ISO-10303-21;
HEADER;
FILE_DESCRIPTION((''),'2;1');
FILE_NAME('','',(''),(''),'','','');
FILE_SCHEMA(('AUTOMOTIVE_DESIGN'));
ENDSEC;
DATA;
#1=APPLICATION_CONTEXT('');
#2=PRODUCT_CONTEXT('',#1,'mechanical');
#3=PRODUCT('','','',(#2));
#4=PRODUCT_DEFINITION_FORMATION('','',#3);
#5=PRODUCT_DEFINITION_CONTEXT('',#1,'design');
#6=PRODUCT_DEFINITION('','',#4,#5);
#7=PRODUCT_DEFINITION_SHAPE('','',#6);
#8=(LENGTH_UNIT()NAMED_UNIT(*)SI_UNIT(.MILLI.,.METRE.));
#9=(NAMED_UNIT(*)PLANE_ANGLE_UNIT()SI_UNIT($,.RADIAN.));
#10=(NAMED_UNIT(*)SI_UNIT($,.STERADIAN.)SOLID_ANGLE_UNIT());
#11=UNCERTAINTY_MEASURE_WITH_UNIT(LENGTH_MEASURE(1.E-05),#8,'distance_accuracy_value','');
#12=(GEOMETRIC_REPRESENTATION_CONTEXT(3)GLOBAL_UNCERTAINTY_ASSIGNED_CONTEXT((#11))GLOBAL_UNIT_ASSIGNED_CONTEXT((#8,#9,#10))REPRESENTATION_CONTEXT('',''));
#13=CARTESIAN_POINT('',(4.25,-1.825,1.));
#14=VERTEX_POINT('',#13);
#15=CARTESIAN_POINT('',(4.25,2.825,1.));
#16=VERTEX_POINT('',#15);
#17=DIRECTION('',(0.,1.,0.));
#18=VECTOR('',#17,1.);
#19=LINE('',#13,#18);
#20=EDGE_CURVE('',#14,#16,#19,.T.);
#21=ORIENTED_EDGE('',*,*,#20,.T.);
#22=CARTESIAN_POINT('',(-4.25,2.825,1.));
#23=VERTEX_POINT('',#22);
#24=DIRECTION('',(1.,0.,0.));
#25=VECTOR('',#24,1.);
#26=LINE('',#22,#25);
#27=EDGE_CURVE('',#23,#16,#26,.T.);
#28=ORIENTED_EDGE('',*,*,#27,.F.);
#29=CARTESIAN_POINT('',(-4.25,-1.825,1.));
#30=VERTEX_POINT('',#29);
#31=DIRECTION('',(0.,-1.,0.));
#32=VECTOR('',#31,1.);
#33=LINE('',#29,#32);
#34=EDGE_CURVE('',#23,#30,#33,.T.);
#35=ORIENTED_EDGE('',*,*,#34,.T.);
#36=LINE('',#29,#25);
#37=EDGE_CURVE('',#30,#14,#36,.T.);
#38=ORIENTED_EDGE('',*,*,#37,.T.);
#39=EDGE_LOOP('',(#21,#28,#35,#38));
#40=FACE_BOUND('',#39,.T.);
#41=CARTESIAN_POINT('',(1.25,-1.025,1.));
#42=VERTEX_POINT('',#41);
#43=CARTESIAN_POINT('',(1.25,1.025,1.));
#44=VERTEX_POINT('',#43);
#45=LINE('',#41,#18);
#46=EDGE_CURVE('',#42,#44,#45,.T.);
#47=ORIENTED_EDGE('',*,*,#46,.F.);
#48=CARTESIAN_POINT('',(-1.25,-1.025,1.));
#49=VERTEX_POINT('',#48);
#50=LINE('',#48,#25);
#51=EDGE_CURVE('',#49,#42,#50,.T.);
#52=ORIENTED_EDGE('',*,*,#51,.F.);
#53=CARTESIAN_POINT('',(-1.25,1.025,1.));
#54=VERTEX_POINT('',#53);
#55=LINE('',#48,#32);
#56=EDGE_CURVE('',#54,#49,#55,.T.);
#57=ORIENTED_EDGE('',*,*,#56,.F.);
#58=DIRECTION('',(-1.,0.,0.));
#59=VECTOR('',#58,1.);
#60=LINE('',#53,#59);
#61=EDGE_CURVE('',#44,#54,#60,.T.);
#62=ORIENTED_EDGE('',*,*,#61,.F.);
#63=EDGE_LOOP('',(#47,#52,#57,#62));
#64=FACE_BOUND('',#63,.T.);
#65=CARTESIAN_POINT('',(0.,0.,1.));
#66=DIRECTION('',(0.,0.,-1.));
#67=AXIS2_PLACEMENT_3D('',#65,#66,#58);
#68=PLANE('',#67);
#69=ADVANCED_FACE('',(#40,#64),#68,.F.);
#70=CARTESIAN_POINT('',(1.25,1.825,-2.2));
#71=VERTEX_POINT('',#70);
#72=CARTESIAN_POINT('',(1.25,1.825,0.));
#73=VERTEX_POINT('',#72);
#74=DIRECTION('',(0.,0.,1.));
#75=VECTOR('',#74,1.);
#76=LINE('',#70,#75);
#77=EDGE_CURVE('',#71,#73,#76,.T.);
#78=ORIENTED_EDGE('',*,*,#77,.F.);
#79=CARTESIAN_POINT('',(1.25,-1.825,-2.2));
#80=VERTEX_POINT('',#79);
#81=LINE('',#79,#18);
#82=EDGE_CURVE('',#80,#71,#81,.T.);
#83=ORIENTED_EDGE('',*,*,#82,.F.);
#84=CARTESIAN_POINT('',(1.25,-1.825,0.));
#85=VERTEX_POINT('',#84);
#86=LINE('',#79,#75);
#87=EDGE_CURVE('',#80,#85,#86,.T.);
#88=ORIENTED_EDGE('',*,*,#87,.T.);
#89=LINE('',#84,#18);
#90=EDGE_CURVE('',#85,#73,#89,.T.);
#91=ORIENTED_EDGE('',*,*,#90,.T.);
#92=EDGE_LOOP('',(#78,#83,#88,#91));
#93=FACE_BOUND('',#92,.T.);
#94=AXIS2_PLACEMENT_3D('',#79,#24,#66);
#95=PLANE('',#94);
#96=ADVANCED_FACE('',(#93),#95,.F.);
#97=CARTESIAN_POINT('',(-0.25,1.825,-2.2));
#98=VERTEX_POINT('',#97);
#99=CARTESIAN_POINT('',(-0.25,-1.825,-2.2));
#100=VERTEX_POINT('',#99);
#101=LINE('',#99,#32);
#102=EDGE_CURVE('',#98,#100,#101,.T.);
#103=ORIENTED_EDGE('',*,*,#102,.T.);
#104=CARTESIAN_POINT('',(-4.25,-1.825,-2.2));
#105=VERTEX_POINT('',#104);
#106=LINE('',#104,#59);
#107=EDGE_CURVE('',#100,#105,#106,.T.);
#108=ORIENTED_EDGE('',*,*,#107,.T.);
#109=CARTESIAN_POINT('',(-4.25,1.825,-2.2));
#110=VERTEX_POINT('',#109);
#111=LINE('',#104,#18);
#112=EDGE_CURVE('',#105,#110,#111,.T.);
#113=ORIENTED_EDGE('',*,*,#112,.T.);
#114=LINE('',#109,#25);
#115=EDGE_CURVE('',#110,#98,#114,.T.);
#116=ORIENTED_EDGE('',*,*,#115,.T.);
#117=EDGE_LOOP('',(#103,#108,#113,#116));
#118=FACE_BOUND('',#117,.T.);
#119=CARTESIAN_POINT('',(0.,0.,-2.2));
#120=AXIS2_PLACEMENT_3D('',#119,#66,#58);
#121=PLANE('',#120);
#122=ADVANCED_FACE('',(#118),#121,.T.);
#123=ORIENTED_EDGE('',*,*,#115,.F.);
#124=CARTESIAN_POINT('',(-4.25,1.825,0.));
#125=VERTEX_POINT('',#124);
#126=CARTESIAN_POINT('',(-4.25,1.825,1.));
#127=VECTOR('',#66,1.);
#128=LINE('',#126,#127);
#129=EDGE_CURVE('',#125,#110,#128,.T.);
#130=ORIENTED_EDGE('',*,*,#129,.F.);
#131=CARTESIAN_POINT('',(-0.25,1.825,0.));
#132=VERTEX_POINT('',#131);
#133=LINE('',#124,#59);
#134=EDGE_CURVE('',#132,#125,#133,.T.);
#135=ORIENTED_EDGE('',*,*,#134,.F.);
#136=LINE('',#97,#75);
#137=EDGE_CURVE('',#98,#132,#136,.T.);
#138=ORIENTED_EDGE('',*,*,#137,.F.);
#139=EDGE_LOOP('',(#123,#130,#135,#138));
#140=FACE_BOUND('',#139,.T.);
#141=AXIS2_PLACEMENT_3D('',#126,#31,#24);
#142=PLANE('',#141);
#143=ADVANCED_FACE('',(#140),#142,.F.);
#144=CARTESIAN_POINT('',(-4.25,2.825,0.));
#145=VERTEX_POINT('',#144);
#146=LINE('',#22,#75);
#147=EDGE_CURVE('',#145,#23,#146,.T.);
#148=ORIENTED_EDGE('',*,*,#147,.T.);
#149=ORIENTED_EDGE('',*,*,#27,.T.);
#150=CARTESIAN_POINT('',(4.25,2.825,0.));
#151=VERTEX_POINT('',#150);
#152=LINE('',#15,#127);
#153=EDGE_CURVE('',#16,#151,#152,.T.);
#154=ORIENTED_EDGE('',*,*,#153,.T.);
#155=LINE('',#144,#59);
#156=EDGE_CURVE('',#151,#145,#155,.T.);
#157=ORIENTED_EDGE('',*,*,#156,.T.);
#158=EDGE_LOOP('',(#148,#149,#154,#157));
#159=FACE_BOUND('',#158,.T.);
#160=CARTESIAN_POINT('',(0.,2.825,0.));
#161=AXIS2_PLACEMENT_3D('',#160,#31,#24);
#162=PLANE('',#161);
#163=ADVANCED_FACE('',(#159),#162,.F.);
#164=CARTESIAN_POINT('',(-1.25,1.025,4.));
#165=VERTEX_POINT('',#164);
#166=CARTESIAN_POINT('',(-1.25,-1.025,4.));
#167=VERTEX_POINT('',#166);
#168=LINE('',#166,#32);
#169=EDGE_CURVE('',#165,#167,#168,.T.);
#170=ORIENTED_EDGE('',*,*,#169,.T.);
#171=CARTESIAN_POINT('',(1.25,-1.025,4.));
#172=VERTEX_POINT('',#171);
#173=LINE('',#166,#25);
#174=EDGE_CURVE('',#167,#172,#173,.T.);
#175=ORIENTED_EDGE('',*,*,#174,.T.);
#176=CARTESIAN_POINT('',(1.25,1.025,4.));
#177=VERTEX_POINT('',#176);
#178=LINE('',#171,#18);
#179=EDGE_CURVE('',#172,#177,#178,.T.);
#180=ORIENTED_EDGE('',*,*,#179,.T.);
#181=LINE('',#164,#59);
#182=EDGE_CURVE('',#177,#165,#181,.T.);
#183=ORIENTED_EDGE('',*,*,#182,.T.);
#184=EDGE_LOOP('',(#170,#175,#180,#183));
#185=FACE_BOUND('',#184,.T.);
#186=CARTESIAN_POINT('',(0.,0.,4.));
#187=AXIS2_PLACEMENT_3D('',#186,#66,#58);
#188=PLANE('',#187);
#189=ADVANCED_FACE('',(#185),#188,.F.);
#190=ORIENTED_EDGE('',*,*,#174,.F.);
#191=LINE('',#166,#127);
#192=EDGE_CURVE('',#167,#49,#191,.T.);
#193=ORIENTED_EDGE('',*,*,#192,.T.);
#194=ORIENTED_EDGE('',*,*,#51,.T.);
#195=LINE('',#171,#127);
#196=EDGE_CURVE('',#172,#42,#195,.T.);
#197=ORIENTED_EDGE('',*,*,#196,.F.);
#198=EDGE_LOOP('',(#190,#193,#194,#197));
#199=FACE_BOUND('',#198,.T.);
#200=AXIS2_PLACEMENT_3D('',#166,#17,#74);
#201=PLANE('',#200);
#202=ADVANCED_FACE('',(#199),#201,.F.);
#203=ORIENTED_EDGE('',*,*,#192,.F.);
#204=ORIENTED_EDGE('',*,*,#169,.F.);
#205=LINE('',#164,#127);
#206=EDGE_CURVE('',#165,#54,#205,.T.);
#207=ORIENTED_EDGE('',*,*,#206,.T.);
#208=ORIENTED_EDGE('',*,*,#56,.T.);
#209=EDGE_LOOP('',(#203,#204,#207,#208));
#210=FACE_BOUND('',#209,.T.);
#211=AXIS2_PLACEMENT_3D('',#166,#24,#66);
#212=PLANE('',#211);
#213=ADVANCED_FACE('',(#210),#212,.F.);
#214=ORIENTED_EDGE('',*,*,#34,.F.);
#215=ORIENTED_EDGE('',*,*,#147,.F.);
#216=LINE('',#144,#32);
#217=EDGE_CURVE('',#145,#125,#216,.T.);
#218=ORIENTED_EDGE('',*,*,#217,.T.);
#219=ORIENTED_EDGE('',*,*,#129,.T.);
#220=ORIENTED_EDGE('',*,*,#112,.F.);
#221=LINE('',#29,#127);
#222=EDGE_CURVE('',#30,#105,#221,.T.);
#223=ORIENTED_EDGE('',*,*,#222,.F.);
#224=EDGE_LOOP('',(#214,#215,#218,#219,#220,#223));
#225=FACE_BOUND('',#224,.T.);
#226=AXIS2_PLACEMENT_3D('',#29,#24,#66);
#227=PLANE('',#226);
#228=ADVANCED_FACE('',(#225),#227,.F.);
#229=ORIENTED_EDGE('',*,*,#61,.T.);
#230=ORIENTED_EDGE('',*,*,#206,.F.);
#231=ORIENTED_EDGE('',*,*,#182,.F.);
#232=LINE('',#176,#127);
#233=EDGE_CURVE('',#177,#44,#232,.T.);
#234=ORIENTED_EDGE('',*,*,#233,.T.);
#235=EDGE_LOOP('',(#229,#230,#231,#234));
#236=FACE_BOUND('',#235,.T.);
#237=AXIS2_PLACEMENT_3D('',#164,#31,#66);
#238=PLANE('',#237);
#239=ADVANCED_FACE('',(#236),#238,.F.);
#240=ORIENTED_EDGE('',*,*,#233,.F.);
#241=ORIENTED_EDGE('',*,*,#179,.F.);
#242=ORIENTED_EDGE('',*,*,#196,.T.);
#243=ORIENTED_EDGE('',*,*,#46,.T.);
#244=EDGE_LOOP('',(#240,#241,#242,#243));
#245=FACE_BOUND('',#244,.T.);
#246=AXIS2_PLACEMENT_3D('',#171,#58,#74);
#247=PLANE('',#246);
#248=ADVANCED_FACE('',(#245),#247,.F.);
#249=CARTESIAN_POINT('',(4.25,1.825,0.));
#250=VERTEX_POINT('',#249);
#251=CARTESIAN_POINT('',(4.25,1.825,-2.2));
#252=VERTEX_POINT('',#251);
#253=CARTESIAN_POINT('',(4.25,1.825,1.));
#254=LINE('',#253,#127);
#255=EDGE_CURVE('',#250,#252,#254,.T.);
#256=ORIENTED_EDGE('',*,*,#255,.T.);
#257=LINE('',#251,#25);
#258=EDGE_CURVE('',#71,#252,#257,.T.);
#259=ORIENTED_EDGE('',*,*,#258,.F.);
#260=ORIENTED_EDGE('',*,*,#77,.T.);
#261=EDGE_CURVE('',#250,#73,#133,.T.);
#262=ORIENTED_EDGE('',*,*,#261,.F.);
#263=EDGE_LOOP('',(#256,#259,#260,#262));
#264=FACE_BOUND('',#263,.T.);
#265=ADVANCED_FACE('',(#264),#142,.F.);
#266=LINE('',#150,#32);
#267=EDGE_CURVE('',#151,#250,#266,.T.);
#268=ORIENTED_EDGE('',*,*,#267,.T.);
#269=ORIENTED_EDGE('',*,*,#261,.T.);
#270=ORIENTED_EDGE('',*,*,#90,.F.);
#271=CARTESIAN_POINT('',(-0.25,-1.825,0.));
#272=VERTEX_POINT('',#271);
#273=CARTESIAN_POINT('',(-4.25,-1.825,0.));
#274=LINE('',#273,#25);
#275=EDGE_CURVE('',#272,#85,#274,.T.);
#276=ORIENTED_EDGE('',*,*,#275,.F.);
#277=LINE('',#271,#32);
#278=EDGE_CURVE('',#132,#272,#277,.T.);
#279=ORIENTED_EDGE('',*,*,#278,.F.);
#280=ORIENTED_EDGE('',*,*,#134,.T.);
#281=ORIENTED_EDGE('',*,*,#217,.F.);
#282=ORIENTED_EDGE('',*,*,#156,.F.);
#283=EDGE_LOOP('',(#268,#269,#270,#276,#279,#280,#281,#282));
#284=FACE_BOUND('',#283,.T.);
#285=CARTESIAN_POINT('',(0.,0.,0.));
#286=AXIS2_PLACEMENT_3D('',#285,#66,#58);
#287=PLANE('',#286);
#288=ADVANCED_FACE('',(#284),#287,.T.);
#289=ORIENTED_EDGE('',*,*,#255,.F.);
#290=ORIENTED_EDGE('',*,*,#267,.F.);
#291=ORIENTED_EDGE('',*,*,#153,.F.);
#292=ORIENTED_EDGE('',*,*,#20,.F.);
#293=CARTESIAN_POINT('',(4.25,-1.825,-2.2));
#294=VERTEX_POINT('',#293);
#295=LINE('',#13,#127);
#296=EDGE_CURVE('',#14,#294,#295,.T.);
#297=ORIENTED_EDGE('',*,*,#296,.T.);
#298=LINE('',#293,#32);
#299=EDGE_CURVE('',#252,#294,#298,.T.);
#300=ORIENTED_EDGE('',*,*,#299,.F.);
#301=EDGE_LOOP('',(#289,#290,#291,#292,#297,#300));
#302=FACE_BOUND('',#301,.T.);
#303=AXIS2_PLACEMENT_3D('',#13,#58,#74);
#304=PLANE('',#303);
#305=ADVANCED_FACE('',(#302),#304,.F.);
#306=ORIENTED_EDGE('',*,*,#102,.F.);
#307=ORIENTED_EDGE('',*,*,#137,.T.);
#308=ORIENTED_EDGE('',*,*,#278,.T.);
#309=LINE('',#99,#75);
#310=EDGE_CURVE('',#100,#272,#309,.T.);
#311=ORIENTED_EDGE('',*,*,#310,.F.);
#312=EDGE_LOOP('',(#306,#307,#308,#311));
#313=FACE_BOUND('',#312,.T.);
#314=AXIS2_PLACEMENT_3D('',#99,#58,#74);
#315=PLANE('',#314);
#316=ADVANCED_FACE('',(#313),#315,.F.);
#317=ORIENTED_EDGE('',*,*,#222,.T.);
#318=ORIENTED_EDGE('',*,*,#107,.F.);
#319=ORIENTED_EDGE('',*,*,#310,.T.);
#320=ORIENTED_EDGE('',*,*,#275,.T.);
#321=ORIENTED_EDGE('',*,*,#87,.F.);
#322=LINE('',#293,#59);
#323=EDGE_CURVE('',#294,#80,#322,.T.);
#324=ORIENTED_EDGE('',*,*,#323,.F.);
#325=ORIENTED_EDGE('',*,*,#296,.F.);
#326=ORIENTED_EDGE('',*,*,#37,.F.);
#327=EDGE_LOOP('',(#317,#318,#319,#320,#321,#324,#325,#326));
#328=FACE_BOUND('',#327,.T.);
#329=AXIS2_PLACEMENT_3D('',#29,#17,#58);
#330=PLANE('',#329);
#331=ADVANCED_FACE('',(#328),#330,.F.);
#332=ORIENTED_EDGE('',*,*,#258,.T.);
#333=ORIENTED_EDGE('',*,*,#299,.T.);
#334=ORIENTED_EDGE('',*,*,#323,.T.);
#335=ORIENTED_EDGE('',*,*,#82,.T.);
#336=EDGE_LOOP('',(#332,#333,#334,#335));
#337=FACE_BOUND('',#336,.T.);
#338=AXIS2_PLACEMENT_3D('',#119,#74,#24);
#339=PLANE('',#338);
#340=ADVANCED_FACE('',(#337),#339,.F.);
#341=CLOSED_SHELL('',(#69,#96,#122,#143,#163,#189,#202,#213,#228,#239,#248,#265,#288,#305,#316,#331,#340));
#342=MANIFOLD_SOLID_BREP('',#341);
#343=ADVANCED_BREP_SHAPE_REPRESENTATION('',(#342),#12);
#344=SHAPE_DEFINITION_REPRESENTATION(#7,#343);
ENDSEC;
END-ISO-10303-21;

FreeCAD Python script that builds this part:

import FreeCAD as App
import Part
import Sketcher
from FreeCAD import Vector

doc = App.newDocument("Part")
body = doc.addObject("PartDesign::Body", "Body")

# Sketch on XY plane
sketch1 = body.newObject("Sketcher::SketchObject", "Sketch")
sketch1.AttachmentSupport = (doc.getObject("XY_Plane"), [""])
sketch1.MapMode = "FlatFace"
sketch1.addGeometry(Part.LineSegment(Vector(-4.25, 1.825, 0), Vector(-4.25, -1.825, 0)), False)
sketch1.addGeometry(Part.LineSegment(Vector(-4.25, -1.825, 0), Vector(4.25, -1.825, 0)), False)
sketch1.addGeometry(Part.LineSegment(Vector(4.25, -1.825, 0), Vector(4.25, 1.825, 0)), False)
sketch1.addGeometry(Part.LineSegment(Vector(4.25, 1.825, 0), Vector(-4.25, 1.825, 0)), False)
sketch1.addConstraint(Sketcher.Constraint("Coincident", 0, 2, 1, 1))
sketch1.addConstraint(Sketcher.Constraint("Coincident", 1, 2, 2, 1))
sketch1.addConstraint(Sketcher.Constraint("Coincident", 2, 2, 3, 1))
sketch1.addConstraint(Sketcher.Constraint("Coincident", 3, 2, 0, 1))
sketch1.addConstraint(Sketcher.Constraint("Vertical", 0))
sketch1.addConstraint(Sketcher.Constraint("Horizontal", 1))
sketch1.addConstraint(Sketcher.Constraint("Vertical", 2))
sketch1.addConstraint(Sketcher.Constraint("Horizontal", 3))
sketch1.addConstraint(Sketcher.Constraint("Symmetric", 0, 2, 2, 2, -1, 1))
sketch1.addConstraint(Sketcher.Constraint("DistanceX", 1, 1, 1, 2, 8.5))
sketch1.addConstraint(Sketcher.Constraint("DistanceY", 0, 2, 0, 1, 3.65))
pad1 = body.newObject("PartDesign::Pad", "Pad")
pad1.Profile = sketch1
pad1.Length = 1

# Sketch on XY plane
sketch2 = body.newObject("Sketcher::SketchObject", "Sketch001")
sketch2.AttachmentSupport = (doc.getObject("XY_Plane"), [""])
sketch2.MapMode = "FlatFace"
sketch2.AttachmentOffset = App.Placement(Vector(0, 0, 1), App.Rotation())
sketch2.addGeometry(Part.LineSegment(Vector(-1.25, 1.025, 0), Vector(-1.25, -1.025, 0)), False)
sketch2.addGeometry(Part.LineSegment(Vector(-1.25, -1.025, 0), Vector(1.25, -1.025, 0)), False)
sketch2.addGeometry(Part.LineSegment(Vector(1.25, -1.025, 0), Vector(1.25, 1.025, 0)), False)
sketch2.addGeometry(Part.LineSegment(Vector(1.25, 1.025, 0), Vector(-1.25, 1.025, 0)), False)
sketch2.addConstraint(Sketcher.Constraint("Coincident", 0, 2, 1, 1))
sketch2.addConstraint(Sketcher.Constraint("Coincident", 1, 2, 2, 1))
sketch2.addConstraint(Sketcher.Constraint("Coincident", 2, 2, 3, 1))
sketch2.addConstraint(Sketcher.Constraint("Coincident", 3, 2, 0, 1))
sketch2.addConstraint(Sketcher.Constraint("Vertical", 0))
sketch2.addConstraint(Sketcher.Constraint("Horizontal", 1))
sketch2.addConstraint(Sketcher.Constraint("Vertical", 2))
sketch2.addConstraint(Sketcher.Constraint("Horizontal", 3))
sketch2.addConstraint(Sketcher.Constraint("Symmetric", 0, 2, 2, 2, -1, 1))
sketch2.addConstraint(Sketcher.Constraint("DistanceX", 1, 1, 1, 2, 2.5))
sketch2.addConstraint(Sketcher.Constraint("DistanceY", 0, 2, 0, 1, 2.05))
pad2 = body.newObject("PartDesign::Pad", "Pad001")
pad2.Profile = sketch2
pad2.Length = 3

# Sketch on XY plane
sketch3 = body.newObject("Sketcher::SketchObject", "Sketch002")
sketch3.AttachmentSupport = (doc.getObject("XY_Plane"), [""])
sketch3.MapMode = "FlatFace"
sketch3.addGeometry(Part.LineSegment(Vector(-0.25, 1.825, 0), Vector(-0.25, -1.825, 0)), False)
sketch3.addGeometry(Part.LineSegment(Vector(-0.25, -1.825, 0), Vector(-4.25, -1.825, 0)), False)
sketch3.addGeometry(Part.LineSegment(Vector(-4.25, -1.825, 0), Vector(-4.25, 1.825, 0)), False)
sketch3.addGeometry(Part.LineSegment(Vector(-4.25, 1.825, 0), Vector(-0.25, 1.825, 0)), False)
sketch3.addGeometry(Part.LineSegment(Vector(4.25, 1.825, 0), Vector(4.25, -1.825, 0)), False)
sketch3.addGeometry(Part.LineSegment(Vector(4.25, -1.825, 0), Vector(1.25, -1.825, 0)), False)
sketch3.addGeometry(Part.LineSegment(Vector(1.25, -1.825, 0), Vector(1.25, 1.825, 0)), False)
sketch3.addGeometry(Part.LineSegment(Vector(1.25, 1.825, 0), Vector(4.25, 1.825, 0)), False)
sketch3.addConstraint(Sketcher.Constraint("Coincident", 0, 2, 1, 1))
sketch3.addConstraint(Sketcher.Constraint("Coincident", 1, 2, 2, 1))
sketch3.addConstraint(Sketcher.Constraint("Coincident", 2, 2, 3, 1))
sketch3.addConstraint(Sketcher.Constraint("Coincident", 3, 2, 0, 1))
sketch3.addConstraint(Sketcher.Constraint("Coincident", 4, 2, 5, 1))
sketch3.addConstraint(Sketcher.Constraint("Coincident", 5, 2, 6, 1))
sketch3.addConstraint(Sketcher.Constraint("Coincident", 6, 2, 7, 1))
sketch3.addConstraint(Sketcher.Constraint("Coincident", 7, 2, 4, 1))
sketch3.addConstraint(Sketcher.Constraint("Vertical", 0))
sketch3.addConstraint(Sketcher.Constraint("Horizontal", 1))
sketch3.addConstraint(Sketcher.Constraint("Vertical", 2))
sketch3.addConstraint(Sketcher.Constraint("Horizontal", 3))
sketch3.addConstraint(Sketcher.Constraint("Vertical", 4))
sketch3.addConstraint(Sketcher.Constraint("Horizontal", 5))
sketch3.addConstraint(Sketcher.Constraint("Vertical", 6))
sketch3.addConstraint(Sketcher.Constraint("Horizontal", 7))
sketch3.addConstraint(Sketcher.Constraint("Symmetric", 2, 2, 4, 2, -1, 1))
sketch3.addConstraint(Sketcher.Constraint("Horizontal", 1, 2, 4, 2))
sketch3.addConstraint(Sketcher.Constraint("Horizontal", 3, 2, 6, 2))
sketch3.addConstraint(Sketcher.Constraint("DistanceX", 1, 2, 1, 1, 4.0))
sketch3.addConstraint(Sketcher.Constraint("DistanceX", 5, 2, 5, 1, 3.0))
sketch3.addConstraint(Sketcher.Constraint("DistanceY", 0, 2, 0, 1, 3.65))
sketch3.addConstraint(Sketcher.Constraint("DistanceX", 0, 2, 4, 2, 4.5))
pad3 = body.newObject("PartDesign::Pad", "Pad002")
pad3.Profile = sketch3
pad3.Length = 2.2
pad3.Reversed = True

# Sketch on XZ plane
sketch4 = body.newObject("Sketcher::SketchObject", "Sketch003")
sketch4.AttachmentSupport = (doc.getObject("XZ_Plane"), [""])
sketch4.MapMode = "FlatFace"
sketch4.AttachmentOffset = App.Placement(Vector(0, 0, -1.825), App.Rotation())
sketch4.addGeometry(Part.LineSegment(Vector(-4.25, 0, 0), Vector(-4.25, 1, 0)), False)
sketch4.addGeometry(Part.LineSegment(Vector(-4.25, 1, 0), Vector(4.25, 1, 0)), False)
sketch4.addGeometry(Part.LineSegment(Vector(4.25, 1, 0), Vector(4.25, 0, 0)), False)
sketch4.addGeometry(Part.LineSegment(Vector(4.25, 0, 0), Vector(-4.25, 0, 0)), False)
sketch4.addConstraint(Sketcher.Constraint("Coincident", 0, 2, 1, 1))
sketch4.addConstraint(Sketcher.Constraint("Coincident", 1, 2, 2, 1))
sketch4.addConstraint(Sketcher.Constraint("Coincident", 2, 2, 3, 1))
sketch4.addConstraint(Sketcher.Constraint("Coincident", 3, 2, 0, 1))
sketch4.addConstraint(Sketcher.Constraint("Vertical", 0))
sketch4.addConstraint(Sketcher.Constraint("Horizontal", 1))
sketch4.addConstraint(Sketcher.Constraint("Vertical", 2))
sketch4.addConstraint(Sketcher.Constraint("Horizontal", 3))
sketch4.addConstraint(Sketcher.Constraint("Symmetric", 2, 2, 3, 2, -1, 1))
sketch4.addConstraint(Sketcher.Constraint("DistanceY", 0, 1, 0, 2, 1.0))
sketch4.addConstraint(Sketcher.Constraint("DistanceX", 1, 1, 1, 2, 8.5))
pad4 = body.newObject("PartDesign::Pad", "Pad003")
pad4.Profile = sketch4
pad4.Length = 1
pad4.Reversed = True

doc.recompute()
